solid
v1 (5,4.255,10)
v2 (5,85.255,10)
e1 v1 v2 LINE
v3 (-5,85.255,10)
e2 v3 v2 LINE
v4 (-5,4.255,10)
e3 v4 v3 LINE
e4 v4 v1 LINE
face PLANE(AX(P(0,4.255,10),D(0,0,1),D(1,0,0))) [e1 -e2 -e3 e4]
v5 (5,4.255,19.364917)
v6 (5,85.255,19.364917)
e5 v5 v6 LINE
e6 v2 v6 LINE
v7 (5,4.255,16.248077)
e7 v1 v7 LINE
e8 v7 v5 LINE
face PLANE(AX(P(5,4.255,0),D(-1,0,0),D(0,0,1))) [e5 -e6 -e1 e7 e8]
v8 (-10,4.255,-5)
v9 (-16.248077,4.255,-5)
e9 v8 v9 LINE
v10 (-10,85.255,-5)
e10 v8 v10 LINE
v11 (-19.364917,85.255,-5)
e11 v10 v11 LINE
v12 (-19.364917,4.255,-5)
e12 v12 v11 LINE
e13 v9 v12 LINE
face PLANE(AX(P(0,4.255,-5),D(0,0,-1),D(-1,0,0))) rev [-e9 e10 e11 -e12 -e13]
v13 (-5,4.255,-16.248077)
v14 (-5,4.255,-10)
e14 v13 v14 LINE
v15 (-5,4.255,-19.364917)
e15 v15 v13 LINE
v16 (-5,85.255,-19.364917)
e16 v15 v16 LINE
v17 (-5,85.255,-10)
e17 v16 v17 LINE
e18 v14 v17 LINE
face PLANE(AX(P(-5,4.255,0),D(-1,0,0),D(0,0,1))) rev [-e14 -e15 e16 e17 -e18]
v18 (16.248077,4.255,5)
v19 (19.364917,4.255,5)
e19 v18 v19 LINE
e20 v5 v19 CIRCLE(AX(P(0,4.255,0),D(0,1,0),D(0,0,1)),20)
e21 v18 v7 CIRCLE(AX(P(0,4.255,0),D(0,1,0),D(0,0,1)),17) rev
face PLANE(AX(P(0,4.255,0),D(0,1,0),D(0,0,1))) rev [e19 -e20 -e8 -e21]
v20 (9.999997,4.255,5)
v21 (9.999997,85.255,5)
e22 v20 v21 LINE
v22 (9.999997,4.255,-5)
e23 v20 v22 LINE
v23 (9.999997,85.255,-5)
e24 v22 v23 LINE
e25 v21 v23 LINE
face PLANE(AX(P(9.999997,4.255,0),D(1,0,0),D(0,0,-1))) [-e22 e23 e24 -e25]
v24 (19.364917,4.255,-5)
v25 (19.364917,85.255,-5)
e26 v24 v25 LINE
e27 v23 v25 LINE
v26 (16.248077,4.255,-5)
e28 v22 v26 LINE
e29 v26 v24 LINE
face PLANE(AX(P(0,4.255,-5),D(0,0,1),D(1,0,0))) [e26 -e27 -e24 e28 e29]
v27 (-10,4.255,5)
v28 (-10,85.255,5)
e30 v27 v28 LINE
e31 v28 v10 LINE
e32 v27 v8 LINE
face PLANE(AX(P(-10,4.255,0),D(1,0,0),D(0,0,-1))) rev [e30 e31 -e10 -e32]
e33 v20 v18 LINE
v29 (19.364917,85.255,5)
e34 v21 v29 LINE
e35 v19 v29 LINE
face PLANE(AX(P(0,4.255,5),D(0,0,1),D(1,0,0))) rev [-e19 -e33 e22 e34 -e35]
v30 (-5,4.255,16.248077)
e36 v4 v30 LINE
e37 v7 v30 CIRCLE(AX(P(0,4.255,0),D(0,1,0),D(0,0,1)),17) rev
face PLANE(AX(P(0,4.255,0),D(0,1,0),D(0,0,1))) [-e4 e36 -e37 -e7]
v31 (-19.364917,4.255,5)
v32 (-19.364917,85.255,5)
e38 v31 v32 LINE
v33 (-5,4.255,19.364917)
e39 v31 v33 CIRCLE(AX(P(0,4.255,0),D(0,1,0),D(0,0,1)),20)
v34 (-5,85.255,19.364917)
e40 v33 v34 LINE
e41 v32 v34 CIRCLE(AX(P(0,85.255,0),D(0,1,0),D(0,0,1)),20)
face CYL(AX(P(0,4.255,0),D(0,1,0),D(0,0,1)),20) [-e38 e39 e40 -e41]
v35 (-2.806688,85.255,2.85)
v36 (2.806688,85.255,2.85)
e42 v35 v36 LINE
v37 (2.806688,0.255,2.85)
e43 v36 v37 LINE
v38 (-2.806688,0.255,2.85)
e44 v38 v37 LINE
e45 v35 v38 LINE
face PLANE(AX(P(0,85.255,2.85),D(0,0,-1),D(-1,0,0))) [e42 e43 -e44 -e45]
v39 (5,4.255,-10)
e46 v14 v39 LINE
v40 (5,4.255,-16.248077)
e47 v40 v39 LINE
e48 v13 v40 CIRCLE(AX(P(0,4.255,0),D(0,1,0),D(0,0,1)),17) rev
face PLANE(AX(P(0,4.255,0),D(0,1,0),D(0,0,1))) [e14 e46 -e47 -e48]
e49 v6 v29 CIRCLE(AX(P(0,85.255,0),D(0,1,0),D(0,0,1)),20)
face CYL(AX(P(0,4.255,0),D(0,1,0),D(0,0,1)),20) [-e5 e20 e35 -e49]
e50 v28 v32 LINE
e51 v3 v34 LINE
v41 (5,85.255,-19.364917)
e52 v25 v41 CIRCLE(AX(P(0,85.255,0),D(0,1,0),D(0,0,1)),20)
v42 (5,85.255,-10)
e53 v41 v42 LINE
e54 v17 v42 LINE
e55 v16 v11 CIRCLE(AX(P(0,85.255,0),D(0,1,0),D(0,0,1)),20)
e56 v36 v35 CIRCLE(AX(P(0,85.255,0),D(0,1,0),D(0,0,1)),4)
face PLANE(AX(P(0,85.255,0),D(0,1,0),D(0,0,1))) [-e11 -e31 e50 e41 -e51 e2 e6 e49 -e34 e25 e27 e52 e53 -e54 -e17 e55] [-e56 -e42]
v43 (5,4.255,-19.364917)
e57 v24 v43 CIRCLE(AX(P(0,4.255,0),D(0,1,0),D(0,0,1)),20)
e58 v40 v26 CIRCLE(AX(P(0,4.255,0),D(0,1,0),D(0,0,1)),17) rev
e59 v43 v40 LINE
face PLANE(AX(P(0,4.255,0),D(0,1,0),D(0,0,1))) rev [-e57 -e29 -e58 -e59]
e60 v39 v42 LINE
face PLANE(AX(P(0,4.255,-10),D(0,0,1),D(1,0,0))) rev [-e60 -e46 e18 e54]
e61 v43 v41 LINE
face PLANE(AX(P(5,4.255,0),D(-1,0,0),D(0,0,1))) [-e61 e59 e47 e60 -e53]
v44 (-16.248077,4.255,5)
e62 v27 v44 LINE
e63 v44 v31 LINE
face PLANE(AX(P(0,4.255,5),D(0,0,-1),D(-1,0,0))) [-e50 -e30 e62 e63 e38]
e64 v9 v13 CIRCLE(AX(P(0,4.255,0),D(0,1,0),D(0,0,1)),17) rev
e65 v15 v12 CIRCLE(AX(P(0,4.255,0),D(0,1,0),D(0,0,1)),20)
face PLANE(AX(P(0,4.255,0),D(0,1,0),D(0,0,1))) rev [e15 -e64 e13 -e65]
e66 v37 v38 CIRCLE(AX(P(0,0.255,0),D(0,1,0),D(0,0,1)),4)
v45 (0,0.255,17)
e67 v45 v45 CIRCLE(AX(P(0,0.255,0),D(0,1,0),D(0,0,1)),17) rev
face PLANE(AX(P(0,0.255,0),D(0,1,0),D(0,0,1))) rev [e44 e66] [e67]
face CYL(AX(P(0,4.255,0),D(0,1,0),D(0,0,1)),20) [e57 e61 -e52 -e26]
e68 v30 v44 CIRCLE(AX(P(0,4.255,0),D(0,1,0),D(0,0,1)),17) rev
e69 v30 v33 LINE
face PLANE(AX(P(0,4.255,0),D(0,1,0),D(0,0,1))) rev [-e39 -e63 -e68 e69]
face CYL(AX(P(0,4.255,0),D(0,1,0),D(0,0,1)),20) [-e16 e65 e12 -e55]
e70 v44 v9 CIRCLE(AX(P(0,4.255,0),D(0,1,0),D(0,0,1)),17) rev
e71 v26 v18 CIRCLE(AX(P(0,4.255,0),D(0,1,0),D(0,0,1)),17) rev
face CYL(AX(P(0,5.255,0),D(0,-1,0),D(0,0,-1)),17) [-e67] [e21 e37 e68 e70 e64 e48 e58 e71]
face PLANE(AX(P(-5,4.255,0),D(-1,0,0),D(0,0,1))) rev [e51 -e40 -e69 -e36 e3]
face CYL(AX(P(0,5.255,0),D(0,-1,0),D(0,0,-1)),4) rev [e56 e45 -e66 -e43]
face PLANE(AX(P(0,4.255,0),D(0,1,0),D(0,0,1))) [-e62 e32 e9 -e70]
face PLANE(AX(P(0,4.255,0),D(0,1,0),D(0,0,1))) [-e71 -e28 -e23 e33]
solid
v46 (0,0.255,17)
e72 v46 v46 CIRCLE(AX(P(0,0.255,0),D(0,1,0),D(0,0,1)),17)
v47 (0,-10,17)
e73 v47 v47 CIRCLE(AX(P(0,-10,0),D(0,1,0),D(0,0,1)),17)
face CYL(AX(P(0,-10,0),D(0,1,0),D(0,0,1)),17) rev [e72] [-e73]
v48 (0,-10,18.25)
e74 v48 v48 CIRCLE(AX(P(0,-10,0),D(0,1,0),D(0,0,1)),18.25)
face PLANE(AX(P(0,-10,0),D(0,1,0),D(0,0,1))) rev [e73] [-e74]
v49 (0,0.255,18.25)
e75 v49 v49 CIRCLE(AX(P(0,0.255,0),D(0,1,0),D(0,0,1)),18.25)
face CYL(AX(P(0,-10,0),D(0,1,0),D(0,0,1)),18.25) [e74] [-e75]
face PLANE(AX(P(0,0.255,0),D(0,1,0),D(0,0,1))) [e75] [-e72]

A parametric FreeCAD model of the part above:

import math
import FreeCAD as App
import Part
import Sketcher

doc = App.newDocument("Part")
body = doc.addObject("PartDesign::Body", "Body")

# Sketch on XZ plane
sketch1 = doc.addObject("Sketcher::SketchObject", "Sketch")
body.addObject(sketch1)
sketch1.AttachmentSupport = (doc.XZ_Plane, [""])
sketch1.MapMode = "FlatFace"
sketch1.addGeometry(Part.Circle(App.Vector(0, 0, 0), App.Vector(0, 0, 1), 18), False)
sketch1.addGeometry(Part.Circle(App.Vector(0, 0, 0), App.Vector(0, 0, 1), 17), False)
sketch1.addConstraint(Sketcher.Constraint("Coincident", 0, 3, -1, 1))
sketch1.addConstraint(Sketcher.Constraint("Coincident", 1, 3, -1, 1))
sketch1.addConstraint(Sketcher.Constraint("Diameter", 1, 34.0))
sketch1.addConstraint(Sketcher.Constraint("Diameter", 0, 36.5))
pad1 = doc.addObject("PartDesign::Pad", "Pad")
body.addObject(pad1)
pad1.Profile = sketch1
pad1.Type = "TwoLengths"
pad1.Length = 0.255
pad1.Length2 = 10
pad1.Reversed = True
body2 = doc.addObject("PartDesign::Body", "Body001")

# Sketch on XZ plane
sketch2 = doc.addObject("Sketcher::SketchObject", "Sketch001")
body2.addObject(sketch2)
sketch2.AttachmentSupport = (doc.getObject("XZ_Plane001"), [""])
sketch2.MapMode = "FlatFace"
sketch2.AttachmentOffset = App.Placement(App.Vector(0, 0, -0.255), App.Rotation())
sketch2.addGeometry(Part.Circle(App.Vector(0, 0, 0), App.Vector(0, 0, 1), 17), False)
sketch2.addGeometry(Part.ArcOfCircle(Part.Circle(App.Vector(0, 0, 0), App.Vector(0, 0, 1), 4), math.radians(-59), math.radians(239)), False)
sketch2.addGeometry(Part.LineSegment(App.Vector(-2.1, -3.4, 0), App.Vector(2.1, -3.4, 0)), False)
sketch2.addConstraint(Sketcher.Constraint("Coincident", 1, 1, 2, 2))
sketch2.addConstraint(Sketcher.Constraint("Coincident", 2, 1, 1, 2))
sketch2.addConstraint(Sketcher.Constraint("Horizontal", 2))
sketch2.addConstraint(Sketcher.Constraint("Coincident", 0, 3, -1, 1))
sketch2.addConstraint(Sketcher.Constraint("Coincident", 1, 3, -1, 1))
sketch2.addConstraint(Sketcher.Constraint("Diameter", 0, 34.0))
sketch2.addConstraint(Sketcher.Constraint("Radius", 1, 4.0))
sketch2.addConstraint(Sketcher.Constraint("DistanceY", 1, 1, -1, 1, 3.425))
pad2 = doc.addObject("PartDesign::Pad", "Pad001")
body2.addObject(pad2)
pad2.Profile = sketch2
pad2.Length = 5
pad2.Reversed = True

# Sketch on XZ plane
sketch3 = doc.addObject("Sketcher::SketchObject", "Sketch002")
body2.addObject(sketch3)
sketch3.AttachmentSupport = (doc.getObject("XZ_Plane001"), [""])
sketch3.MapMode = "FlatFace"
sketch3.AttachmentOffset = App.Placement(App.Vector(0, 0, -5.255), App.Rotation())
sketch3.addGeometry(Part.Circle(App.Vector(0, 0, 0), App.Vector(0, 0, 1), 20), False)
sketch3.addConstraint(Sketcher.Constraint("Coincident", 0, 3, -1, 1))
sketch3.addConstraint(Sketcher.Constraint("Diameter", 0, 40.0))
pad3 = doc.addObject("PartDesign::Pad", "Pad002")
body2.addObject(pad3)
pad3.Profile = sketch3
pad3.Type = "TwoLengths"
pad3.Length = 80
pad3.Length2 = 1
pad3.Reversed = True

# Sketch on XZ plane
sketch4 = doc.addObject("Sketcher::SketchObject", "Sketch003")
body2.addObject(sketch4)
sketch4.AttachmentSupport = (doc.getObject("XZ_Plane001"), [""])
sketch4.MapMode = "FlatFace"
sketch4.AttachmentOffset = App.Placement(App.Vector(0, 0, -85.255), App.Rotation())
sketch4.addGeometry(Part.Circle(App.Vector(0, 0, 0), App.Vector(0, 0, 1), 4), False)
sketch4.addConstraint(Sketcher.Constraint("Coincident", 0, 3, -1, 1))
sketch4.addConstraint(Sketcher.Constraint("Diameter", 0, 8.0))
pocket1 = doc.addObject("PartDesign::Pocket", "Pocket")
body2.addObject(pocket1)
pocket1.Profile = sketch4
pocket1.Length = 96.3
pocket1.Reversed = True

# Sketch on XZ plane
sketch5 = doc.addObject("Sketcher::SketchObject", "Sketch004")
body2.addObject(sketch5)
sketch5.AttachmentSupport = (doc.getObject("XZ_Plane001"), [""])
sketch5.MapMode = "FlatFace"
sketch5.AttachmentOffset = App.Placement(App.Vector(0, 0, -85.255), App.Rotation())
sketch5.addGeometry(Part.ArcOfCircle(Part.Circle(App.Vector(0, 0, 0), App.Vector(0, 0, 1), 20), math.radians(76), math.radians(104)), False)
sketch5.addGeometry(Part.LineSegment(App.Vector(5, 19, 0), App.Vector(5, 10, 0)), False)
sketch5.addGeometry(Part.LineSegment(App.Vector(5, 10, 0), App.Vector(-5, 10, 0)), False)
sketch5.addGeometry(Part.LineSegment(App.Vector(-5, 10, 0), App.Vector(-5, 19, 0)), False)
sketch5.addGeometry(Part.ArcOfCircle(Part.Circle(App.Vector(0, 0, 0), App.Vector(0, 0, 1), 20), math.radians(166), math.radians(194)), False)
sketch5.addGeometry(Part.LineSegment(App.Vector(-19, 5, 0), App.Vector(-10, 5, 0)), False)
sketch5.addGeometry(Part.LineSegment(App.Vector(-10, 5, 0), App.Vector(-10, -5, 0)), False)
sketch5.addGeometry(Part.LineSegment(App.Vector(-10, -5, 0), App.Vector(-19, -5, 0)), False)
sketch5.addGeometry(Part.LineSegment(App.Vector(5, -10, 0), App.Vector(5, -19, 0)), False)
sketch5.addGeometry(Part.ArcOfCircle(Part.Circle(App.Vector(0, 0, 0), App.Vector(0, 0, 1), 20), math.radians(-104), math.radians(-76)), False)
sketch5.addGeometry(Part.LineSegment(App.Vector(-5, -19, 0), App.Vector(-5, -10, 0)), False)
sketch5.addGeometry(Part.LineSegment(App.Vector(-5, -10, 0), App.Vector(5, -10, 0)), False)
sketch5.addGeometry(Part.LineSegment(App.Vector(10, -5, 0), App.Vector(10, 5, 0)), False)
sketch5.addGeometry(Part.LineSegment(App.Vector(10, 5, 0), App.Vector(19, 5, 0)), False)
sketch5.addGeometry(Part.ArcOfCircle(Part.Circle(App.Vector(0, 0, 0), App.Vector(0, 0, 1), 20), math.radians(0), math.radians(14.48)), False)
sketch5.addGeometry(Part.ArcOfCircle(Part.Circle(App.Vector(0, 0, 0), App.Vector(0, 0, 1), 20), math.radians(-14.48), math.radians(0)), False)
sketch5.addGeometry(Part.LineSegment(App.Vector(19, -5, 0), App.Vector(10, -5, 0)), False)
sketch5.addConstraint(Sketcher.Constraint("Coincident", 0, 1, 1, 1))
sketch5.addConstraint(Sketcher.Constraint("Coincident", 1, 2, 2, 1))
sketch5.addConstraint(Sketcher.Constraint("Coincident", 2, 2, 3, 1))
sketch5.addConstraint(Sketcher.Constraint("Coincident", 3, 2, 0, 2))
sketch5.addConstraint(Sketcher.Constraint("Coincident", 4, 1, 5, 1))
sketch5.addConstraint(Sketcher.Constraint("Coincident", 5, 2, 6, 1))
sketch5.addConstraint(Sketcher.Constraint("Coincident", 6, 2, 7, 1))
sketch5.addConstraint(Sketcher.Constraint("Coincident", 7, 2, 4, 2))
sketch5.addConstraint(Sketcher.Constraint("Coincident", 8, 2, 9, 2))
sketch5.addConstraint(Sketcher.Constraint("Coincident", 9, 1, 10, 1))
sketch5.addConstraint(Sketcher.Constraint("Coincident", 10, 2, 11, 1))
sketch5.addConstraint(Sketcher.Constraint("Coincident", 11, 2, 8, 1))
sketch5.addConstraint(Sketcher.Constraint("Coincident", 12, 2, 13, 1))
sketch5.addConstraint(Sketcher.Constraint("Coincident", 13, 2, 14, 2))
sketch5.addConstraint(Sketcher.Constraint("Tangent", 14, 1, 15, 2))
sketch5.addConstraint(Sketcher.Constraint("Coincident", 15, 1, 16, 1))
sketch5.addConstraint(Sketcher.Constraint("Coincident", 16, 2, 12, 1))
sketch5.addConstraint(Sketcher.Constraint("Vertical", 1))
sketch5.addConstraint(Sketcher.Constraint("Horizontal", 2))
sketch5.addConstraint(Sketcher.Constraint("Vertical", 3))
sketch5.addConstraint(Sketcher.Constraint("Horizontal", 5))
sketch5.addConstraint(Sketcher.Constraint("Vertical", 6))
sketch5.addConstraint(Sketcher.Constraint("Horizontal", 7))
sketch5.addConstraint(Sketcher.Constraint("Vertical", 8))
sketch5.addConstraint(Sketcher.Constraint("Vertical", 10))
sketch5.addConstraint(Sketcher.Constraint("Horizontal", 11))
sketch5.addConstraint(Sketcher.Constraint("Vertical", 12))
sketch5.addConstraint(Sketcher.Constraint("Horizontal", 13))
sketch5.addConstraint(Sketcher.Constraint("Horizontal", 16))
sketch5.addConstraint(Sketcher.Constraint("Coincident", 0, 3, -1, 1))
sketch5.addConstraint(Sketcher.Constraint("Coincident", 4, 3, -1, 1))
sketch5.addConstraint(Sketcher.Constraint("Coincident", 9, 3, -1, 1))
sketch5.addConstraint(Sketcher.Constraint("Coincident", 14, 3, -1, 1))
sketch5.addConstraint(Sketcher.Constraint("Equal", 0, 4))
sketch5.addConstraint(Sketcher.Constraint("Equal", 4, 9))
sketch5.addConstraint(Sketcher.Constraint("Equal", 9, 14))
sketch5.addConstraint(Sketcher.Constraint("Equal", 14, 15))
sketch5.addConstraint(Sketcher.Constraint("Symmetric", 1, 2, 10, 2, -1, 1))
sketch5.addConstraint(Sketcher.Constraint("Symmetric", 6, 2, 12, 2, -1, 1))
sketch5.addConstraint(Sketcher.Constraint("PointOnObject", 14, 1, -1))
sketch5.addConstraint(Sketcher.Constraint("Horizontal", 0, 1, 3, 2))
sketch5.addConstraint(Sketcher.Constraint("Horizontal", 8, 2, 9, 1))
sketch5.addConstraint(Sketcher.Constraint("Horizontal", 5, 2, 12, 2))
sketch5.addConstraint(Sketcher.Constraint("Horizontal", 7, 2, 15, 1))
sketch5.addConstraint(Sketcher.Constraint("Equal", 7, 1))
sketch5.addConstraint(Sketcher.Constraint("Equal", 11, 6))
sketch5.addConstraint(Sketcher.Constraint("Radius", 0, 20.0))
sketch5.addConstraint(Sketcher.Constraint("DistanceX", 2, 2, 2, 1, 10.0))
sketch5.addConstraint(Sketcher.Constraint("DistanceY", -1, 1, 1, 2, 10.0))
pocket2 = doc.addObject("PartDesign::Pocket", "Pocket001")
body2.addObject(pocket2)
pocket2.Profile = sketch5
pocket2.Length = 81
pocket2.Reversed = True

# Sketch on XZ plane
sketch6 = doc.addObject("Sketcher::SketchObject", "Sketch005")
body2.addObject(sketch6)
sketch6.AttachmentSupport = (doc.getObject("XZ_Plane001"), [""])
sketch6.MapMode = "FlatFace"
sketch6.AttachmentOffset = App.Placement(App.Vector(0, 0, -0.255), App.Rotation())
sketch6.addGeometry(Part.ArcOfCircle(Part.Circle(App.Vector(0, 0, 0), App.Vector(0, 0, 1), 4), math.radians(45), math.radians(135)), False)
sketch6.addGeometry(Part.LineSegment(App.Vector(-2.8, 2.9, 0), App.Vector(2.8, 2.9, 0)), False)
sketch6.addConstraint(Sketcher.Constraint("Coincident", 0, 1, 1, 2))
sketch6.addConstraint(Sketcher.Constraint("Coincident", 1, 1, 0, 2))
sketch6.addConstraint(Sketcher.Constraint("Horizontal", 1))
sketch6.addConstraint(Sketcher.Constraint("Coincident", 0, 3, -1, 1))
sketch6.addConstraint(Sketcher.Constraint("Radius", 0, 4.0))
sketch6.addConstraint(Sketcher.Constraint("DistanceY", -1, 1, 0, 1, 2.85))
pad4 = doc.addObject("PartDesign::Pad", "Pad003")
body2.addObject(pad4)
pad4.Profile = sketch6
pad4.Length = 85
pad4.Reversed = True

doc.recompute()
